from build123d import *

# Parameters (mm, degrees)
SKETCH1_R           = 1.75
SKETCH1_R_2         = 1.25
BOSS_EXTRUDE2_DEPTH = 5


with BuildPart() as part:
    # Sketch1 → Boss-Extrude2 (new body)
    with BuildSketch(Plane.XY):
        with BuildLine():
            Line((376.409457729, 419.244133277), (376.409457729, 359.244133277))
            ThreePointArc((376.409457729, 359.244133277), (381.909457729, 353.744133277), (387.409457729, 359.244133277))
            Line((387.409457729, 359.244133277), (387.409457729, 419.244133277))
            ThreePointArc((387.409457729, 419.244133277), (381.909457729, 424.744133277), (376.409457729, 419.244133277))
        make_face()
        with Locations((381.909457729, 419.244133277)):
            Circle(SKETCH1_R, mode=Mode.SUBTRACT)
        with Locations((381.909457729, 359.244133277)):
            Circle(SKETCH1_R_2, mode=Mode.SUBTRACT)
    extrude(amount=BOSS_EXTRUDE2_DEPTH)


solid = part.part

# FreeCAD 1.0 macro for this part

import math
import FreeCAD as App
import Part
import Sketcher
Q = App.Units.Quantity

doc = App.newDocument("Part")
body = doc.addObject("PartDesign::Body", "Body")

# Sketch on XY plane
sketch1 = doc.addObject("Sketcher::SketchObject", "Sketch")
body.addObject(sketch1)
sketch1.AttachmentSupport = (doc.XY_Plane, [""])
sketch1.MapMode = "FlatFace"
sketch1.addGeometry([
    Part.LineSegment(App.Vector(376.409458, 419.244133, 0), App.Vector(376.409458, 359.244133, 0)),  # 0
    Part.ArcOfCircle(Part.Circle(App.Vector(381.909458, 359.244133, 0), App.Vector(0, 0, 1), 5.5), math.radians(180), math.radians(360)),  # 1
    Part.LineSegment(App.Vector(387.409458, 359.244133, 0), App.Vector(387.409458, 419.244133, 0)),  # 2
    Part.ArcOfCircle(Part.Circle(App.Vector(381.909458, 419.244133, 0), App.Vector(0, 0, 1), 5.5), math.radians(0), math.radians(180)),  # 3
    Part.Circle(App.Vector(381.909458, 359.244133, 0), App.Vector(0, 0, 1), 1.25),  # 4
    Part.Circle(App.Vector(381.909458, 419.244133, 0), App.Vector(0, 0, 1), 1.75),  # 5
], False)
sketch1.addConstraint([
    Sketcher.Constraint("Tangent", 0, 2, 1, 1),
    Sketcher.Constraint("Tangent", 1, 2, 2, 1),
    Sketcher.Constraint("Tangent", 2, 2, 3, 1),
    Sketcher.Constraint("Tangent", 3, 2, 0, 1),
    Sketcher.Constraint("Vertical", 0),
    Sketcher.Constraint("Vertical", 2),
    Sketcher.Constraint("Coincident", 4, 3, 1, 3),
    Sketcher.Constraint("Coincident", 5, 3, 3, 3),
    Sketcher.Constraint("Diameter", 4, Q("2.5 mm")),
    Sketcher.Constraint("Diameter", 5, Q("3.5 mm")),
    Sketcher.Constraint("Radius", 1, Q("5.5 mm")),
    Sketcher.Constraint("DistanceY", 0, 2, 0, 1, Q("60 mm")),
    Sketcher.Constraint("DistanceX", -1, 1, 1, 3, Q("381.909458 mm")),
    Sketcher.Constraint("DistanceY", -1, 1, 1, 3, Q("359.244133 mm")),
])
pad1 = doc.addObject("PartDesign::Pad", "Pad")
body.addObject(pad1)
pad1.Profile = sketch1
pad1.Length = 5

doc.recompute()
